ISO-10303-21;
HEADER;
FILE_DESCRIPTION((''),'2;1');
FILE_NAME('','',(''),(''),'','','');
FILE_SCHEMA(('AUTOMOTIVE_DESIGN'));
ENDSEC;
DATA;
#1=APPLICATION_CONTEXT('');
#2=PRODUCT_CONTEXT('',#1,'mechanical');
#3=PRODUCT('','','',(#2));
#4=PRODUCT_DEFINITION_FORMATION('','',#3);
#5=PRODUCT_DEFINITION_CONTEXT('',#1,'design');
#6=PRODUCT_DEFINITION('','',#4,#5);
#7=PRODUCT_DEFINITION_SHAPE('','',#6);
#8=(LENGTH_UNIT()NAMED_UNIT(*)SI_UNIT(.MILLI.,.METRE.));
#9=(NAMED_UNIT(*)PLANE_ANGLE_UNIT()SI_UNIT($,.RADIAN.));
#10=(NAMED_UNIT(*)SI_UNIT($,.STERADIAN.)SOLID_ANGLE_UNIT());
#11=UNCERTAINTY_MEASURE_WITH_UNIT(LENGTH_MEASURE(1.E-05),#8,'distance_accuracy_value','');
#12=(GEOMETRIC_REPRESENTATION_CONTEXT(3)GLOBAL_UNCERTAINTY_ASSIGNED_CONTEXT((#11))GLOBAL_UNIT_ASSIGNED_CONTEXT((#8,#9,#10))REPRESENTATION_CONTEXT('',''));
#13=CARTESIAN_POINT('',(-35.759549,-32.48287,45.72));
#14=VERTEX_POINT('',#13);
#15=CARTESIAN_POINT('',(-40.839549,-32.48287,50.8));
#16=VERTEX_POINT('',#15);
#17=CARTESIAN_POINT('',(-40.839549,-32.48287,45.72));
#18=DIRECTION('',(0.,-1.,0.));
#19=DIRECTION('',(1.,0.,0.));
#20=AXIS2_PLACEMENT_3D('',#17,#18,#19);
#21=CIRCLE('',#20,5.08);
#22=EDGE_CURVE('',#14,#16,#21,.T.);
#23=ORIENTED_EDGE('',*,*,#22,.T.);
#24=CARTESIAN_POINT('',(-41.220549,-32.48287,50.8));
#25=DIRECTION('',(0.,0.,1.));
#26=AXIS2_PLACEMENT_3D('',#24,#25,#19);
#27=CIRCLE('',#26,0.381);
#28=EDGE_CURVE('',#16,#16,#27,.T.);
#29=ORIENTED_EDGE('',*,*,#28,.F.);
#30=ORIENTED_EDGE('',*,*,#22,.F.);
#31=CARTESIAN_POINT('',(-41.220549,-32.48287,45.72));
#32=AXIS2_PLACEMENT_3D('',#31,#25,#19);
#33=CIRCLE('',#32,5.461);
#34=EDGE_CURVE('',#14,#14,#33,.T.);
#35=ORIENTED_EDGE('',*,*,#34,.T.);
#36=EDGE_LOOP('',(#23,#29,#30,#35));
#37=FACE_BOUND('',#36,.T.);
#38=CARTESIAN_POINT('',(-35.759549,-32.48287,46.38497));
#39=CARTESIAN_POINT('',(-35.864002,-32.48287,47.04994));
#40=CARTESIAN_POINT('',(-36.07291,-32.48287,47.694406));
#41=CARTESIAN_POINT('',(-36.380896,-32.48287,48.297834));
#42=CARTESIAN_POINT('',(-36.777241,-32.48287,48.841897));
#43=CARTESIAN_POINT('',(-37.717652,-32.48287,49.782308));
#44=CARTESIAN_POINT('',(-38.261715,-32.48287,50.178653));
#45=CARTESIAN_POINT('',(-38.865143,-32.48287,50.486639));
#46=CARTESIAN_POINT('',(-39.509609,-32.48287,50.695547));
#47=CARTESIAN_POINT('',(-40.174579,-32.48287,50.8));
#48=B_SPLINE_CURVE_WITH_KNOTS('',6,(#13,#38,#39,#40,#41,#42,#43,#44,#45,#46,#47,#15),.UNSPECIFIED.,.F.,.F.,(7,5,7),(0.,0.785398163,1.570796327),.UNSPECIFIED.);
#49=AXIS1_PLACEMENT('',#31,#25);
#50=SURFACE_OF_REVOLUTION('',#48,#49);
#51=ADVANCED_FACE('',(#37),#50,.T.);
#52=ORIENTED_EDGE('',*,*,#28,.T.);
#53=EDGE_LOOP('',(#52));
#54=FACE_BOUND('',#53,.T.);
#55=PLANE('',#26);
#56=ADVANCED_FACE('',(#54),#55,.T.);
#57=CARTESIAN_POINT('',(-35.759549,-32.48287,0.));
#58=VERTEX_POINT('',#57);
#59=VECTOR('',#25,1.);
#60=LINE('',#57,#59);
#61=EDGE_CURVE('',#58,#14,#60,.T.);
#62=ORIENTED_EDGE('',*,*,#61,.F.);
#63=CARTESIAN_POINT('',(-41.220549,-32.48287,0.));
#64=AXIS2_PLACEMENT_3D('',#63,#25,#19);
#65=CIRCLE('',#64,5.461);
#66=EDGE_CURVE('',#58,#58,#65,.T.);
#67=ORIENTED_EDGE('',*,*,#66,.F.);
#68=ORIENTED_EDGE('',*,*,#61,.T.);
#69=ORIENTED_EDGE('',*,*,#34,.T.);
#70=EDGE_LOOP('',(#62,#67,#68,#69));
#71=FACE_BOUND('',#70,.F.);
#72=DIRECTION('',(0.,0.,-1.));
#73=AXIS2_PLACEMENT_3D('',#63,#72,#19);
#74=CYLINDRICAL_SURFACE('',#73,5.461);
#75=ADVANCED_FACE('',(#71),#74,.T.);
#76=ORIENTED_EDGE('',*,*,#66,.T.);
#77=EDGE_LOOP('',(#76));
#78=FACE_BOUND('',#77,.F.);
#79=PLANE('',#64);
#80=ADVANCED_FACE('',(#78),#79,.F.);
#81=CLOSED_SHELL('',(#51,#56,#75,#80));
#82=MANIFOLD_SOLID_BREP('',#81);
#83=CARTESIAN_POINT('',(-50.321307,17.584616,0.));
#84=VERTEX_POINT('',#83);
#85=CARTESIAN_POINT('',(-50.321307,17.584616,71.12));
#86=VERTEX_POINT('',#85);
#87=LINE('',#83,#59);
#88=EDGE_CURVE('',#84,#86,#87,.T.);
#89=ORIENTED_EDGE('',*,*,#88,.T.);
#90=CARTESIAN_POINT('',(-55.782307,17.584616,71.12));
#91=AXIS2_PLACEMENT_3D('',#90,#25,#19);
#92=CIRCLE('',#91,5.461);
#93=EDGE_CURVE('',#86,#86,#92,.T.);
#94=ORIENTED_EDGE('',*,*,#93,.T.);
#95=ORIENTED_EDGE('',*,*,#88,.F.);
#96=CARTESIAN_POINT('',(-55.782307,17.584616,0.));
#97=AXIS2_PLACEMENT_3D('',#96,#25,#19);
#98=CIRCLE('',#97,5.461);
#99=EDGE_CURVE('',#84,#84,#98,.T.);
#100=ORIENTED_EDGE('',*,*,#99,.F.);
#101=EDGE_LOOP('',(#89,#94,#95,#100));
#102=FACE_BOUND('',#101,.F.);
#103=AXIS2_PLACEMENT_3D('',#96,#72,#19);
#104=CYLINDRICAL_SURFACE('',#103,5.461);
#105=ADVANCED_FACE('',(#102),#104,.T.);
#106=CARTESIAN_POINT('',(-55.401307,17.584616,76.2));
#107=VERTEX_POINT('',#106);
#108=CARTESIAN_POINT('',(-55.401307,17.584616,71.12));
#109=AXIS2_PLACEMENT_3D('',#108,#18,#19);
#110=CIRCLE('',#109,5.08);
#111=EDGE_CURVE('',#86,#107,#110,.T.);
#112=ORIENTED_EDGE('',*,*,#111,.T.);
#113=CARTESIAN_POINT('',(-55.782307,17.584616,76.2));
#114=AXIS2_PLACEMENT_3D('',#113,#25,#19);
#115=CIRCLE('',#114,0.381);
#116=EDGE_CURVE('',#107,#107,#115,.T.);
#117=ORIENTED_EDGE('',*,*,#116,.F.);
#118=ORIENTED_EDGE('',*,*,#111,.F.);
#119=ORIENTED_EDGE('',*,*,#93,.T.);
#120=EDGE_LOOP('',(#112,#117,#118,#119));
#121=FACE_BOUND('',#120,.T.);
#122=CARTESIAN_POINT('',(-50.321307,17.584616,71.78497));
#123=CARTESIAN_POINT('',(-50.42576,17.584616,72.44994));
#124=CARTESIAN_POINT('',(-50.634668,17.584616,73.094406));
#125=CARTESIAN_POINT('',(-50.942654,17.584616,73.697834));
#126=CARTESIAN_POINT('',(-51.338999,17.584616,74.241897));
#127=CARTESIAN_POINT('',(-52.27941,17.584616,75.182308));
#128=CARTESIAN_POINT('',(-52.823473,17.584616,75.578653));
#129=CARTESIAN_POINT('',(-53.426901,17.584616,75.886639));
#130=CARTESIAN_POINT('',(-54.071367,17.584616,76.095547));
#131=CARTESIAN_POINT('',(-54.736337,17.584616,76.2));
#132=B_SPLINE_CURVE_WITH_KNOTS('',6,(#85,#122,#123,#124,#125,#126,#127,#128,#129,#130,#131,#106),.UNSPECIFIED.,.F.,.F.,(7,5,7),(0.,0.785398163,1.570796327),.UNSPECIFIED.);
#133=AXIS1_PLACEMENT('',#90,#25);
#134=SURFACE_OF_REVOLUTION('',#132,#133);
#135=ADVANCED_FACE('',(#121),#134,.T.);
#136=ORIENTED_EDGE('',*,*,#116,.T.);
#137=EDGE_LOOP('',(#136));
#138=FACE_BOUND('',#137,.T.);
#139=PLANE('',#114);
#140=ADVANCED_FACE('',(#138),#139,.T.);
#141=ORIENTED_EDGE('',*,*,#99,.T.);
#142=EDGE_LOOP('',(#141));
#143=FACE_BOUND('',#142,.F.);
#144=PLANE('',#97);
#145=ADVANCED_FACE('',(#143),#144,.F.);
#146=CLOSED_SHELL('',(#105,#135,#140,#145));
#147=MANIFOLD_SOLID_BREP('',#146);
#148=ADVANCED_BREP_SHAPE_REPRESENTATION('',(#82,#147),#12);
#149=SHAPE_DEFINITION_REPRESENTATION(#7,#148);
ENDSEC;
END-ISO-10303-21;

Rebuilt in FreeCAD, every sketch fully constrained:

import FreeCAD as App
import Part
import Sketcher
from FreeCAD import Vector
Q = App.Units.Quantity


def edges_at(feature, points):
    """Names of the edges that pass closest to the given points."""
    edges = feature.Shape.Edges
    near = lambda p: min(range(len(edges)), key=lambda i: edges[i].distToShape(Part.Vertex(*p))[0])
    return sorted({f"Edge{near(p) + 1}" for p in points})

doc = App.newDocument("Part")
params = doc.addObject("Spreadsheet::Sheet", "Params")
for row, (alias, value) in enumerate([
    ("sketch1_diameter", "0.43 in"),
    ("pad1_length", "3 in"),
    ("fillet_radius", "0.2 in"),
    ("sketch2_diameter", "0.43 in"),
    ("pad2_length", "2 in"),
    ("fillet2_radius", "0.2 in"),
], start=1):
    params.set(f"A{row}", alias)
    params.set(f"B{row}", "=" + value)
    params.setAlias(f"B{row}", alias)

body = doc.addObject("PartDesign::Body", "Body")

# Sketch on XY plane
sketch1 = body.newObject("Sketcher::SketchObject", "Sketch")
sketch1.AttachmentSupport = (doc.getObject("XY_Plane"), [""])
sketch1.MapMode = "FlatFace"
sketch1.addGeometry(Part.Circle(Vector(-56, 18, 0), Vector(0, 0, 1), 5), False)
sketch1.addConstraint([
    Sketcher.Constraint("Diameter", 0, Q("0.43 in")),
    Sketcher.Constraint("DistanceX", 0, 3, -1, 1, Q("55.782307 mm")),
    Sketcher.Constraint("DistanceY", -1, 1, 0, 3, Q("17.584616 mm")),
])
sketch1.setExpression("Constraints[0]", "Params.sketch1_diameter")
pad1 = body.newObject("PartDesign::Pad", "Pad")
pad1.Profile = sketch1
pad1.setExpression("Length", "Params.pad1_length")
doc.recompute()

fillet = body.newObject("PartDesign::Fillet", "Fillet")
fillet.Base = (pad1, edges_at(pad1, [(-61.243, 17.585, 76.2)]))
fillet.setExpression("Radius", "Params.fillet_radius")
body2 = doc.addObject("PartDesign::Body", "Body001")

# Sketch on XY plane
sketch2 = body2.newObject("Sketcher::SketchObject", "Sketch001")
sketch2.AttachmentSupport = (doc.getObject("XY_Plane001"), [""])
sketch2.MapMode = "FlatFace"
sketch2.addGeometry(Part.Circle(Vector(-41, -32, 0), Vector(0, 0, 1), 5), False)
sketch2.addConstraint([
    Sketcher.Constraint("Diameter", 0, Q("0.43 in")),
    Sketcher.Constraint("DistanceX", 0, 3, -1, 1, Q("41.220549 mm")),
    Sketcher.Constraint("DistanceY", 0, 3, -1, 1, Q("32.48287 mm")),
])
sketch2.setExpression("Constraints[0]", "Params.sketch2_diameter")
pad2 = body2.newObject("PartDesign::Pad", "Pad001")
pad2.Profile = sketch2
pad2.setExpression("Length", "Params.pad2_length")
doc.recompute()

fillet2 = body2.newObject("PartDesign::Fillet", "Fillet001")
fillet2.Base = (pad2, edges_at(pad2, [(-46.682, -32.483, 50.8)]))
fillet2.setExpression("Radius", "Params.fillet2_radius")

doc.recompute()
